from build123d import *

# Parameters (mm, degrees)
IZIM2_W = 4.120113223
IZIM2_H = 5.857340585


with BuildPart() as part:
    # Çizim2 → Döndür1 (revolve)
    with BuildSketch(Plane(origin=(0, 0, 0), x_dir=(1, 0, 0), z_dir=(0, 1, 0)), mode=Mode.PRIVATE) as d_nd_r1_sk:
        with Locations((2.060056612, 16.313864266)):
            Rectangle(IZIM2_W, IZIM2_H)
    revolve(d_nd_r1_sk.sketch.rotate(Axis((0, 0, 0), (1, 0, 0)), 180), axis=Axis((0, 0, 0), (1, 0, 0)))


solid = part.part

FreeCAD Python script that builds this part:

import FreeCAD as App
import Part
import Sketcher

V = App.Vector
Q = App.Units.Quantity

doc = App.newDocument("Part")
body = doc.addObject("PartDesign::Body", "Body")

sketch1 = doc.addObject("Sketcher::SketchObject", "Sketch")
body.addObject(sketch1)
sketch1.AttachmentSupport = (doc.XZ_Plane, [""])
sketch1.MapMode = "FlatFace"
sketch1.addGeometry([
    Part.LineSegment(V(0, -19.2, 0), V(0, -13.4, 0)),
    Part.LineSegment(V(0, -13.4, 0), V(4.1, -13.4, 0)),
    Part.LineSegment(V(4.1, -13.4, 0), V(4.1, -19.2, 0)),
    Part.LineSegment(V(4.1, -19.2, 0), V(0, -19.2, 0)),
], False)
sketch1.addConstraint([
    Sketcher.Constraint("Coincident", 0, 2, 1, 1),
    Sketcher.Constraint("Coincident", 1, 2, 2, 1),
    Sketcher.Constraint("Coincident", 2, 2, 3, 1),
    Sketcher.Constraint("Coincident", 3, 2, 0, 1),
    Sketcher.Constraint("Vertical", 0),
    Sketcher.Constraint("Horizontal", 1),
    Sketcher.Constraint("Vertical", 2),
    Sketcher.Constraint("Horizontal", 3),
    Sketcher.Constraint("PointOnObject", 0, 2, -2),
    Sketcher.Constraint("DistanceY", 0, 1, 0, 2, Q("5.857341 mm")),
    Sketcher.Constraint("DistanceX", 1, 1, 1, 2, Q("4.120113 mm")),
    Sketcher.Constraint("DistanceY", 0, 2, -1, 1, Q("13.385194 mm")),
])
revolution = doc.addObject("PartDesign::Revolution", "Revolution")
body.addObject(revolution)
revolution.Profile = sketch1
revolution.ReferenceAxis = (sketch1, ["H_Axis"])
revolution.Angle = 360

doc.recompute()
